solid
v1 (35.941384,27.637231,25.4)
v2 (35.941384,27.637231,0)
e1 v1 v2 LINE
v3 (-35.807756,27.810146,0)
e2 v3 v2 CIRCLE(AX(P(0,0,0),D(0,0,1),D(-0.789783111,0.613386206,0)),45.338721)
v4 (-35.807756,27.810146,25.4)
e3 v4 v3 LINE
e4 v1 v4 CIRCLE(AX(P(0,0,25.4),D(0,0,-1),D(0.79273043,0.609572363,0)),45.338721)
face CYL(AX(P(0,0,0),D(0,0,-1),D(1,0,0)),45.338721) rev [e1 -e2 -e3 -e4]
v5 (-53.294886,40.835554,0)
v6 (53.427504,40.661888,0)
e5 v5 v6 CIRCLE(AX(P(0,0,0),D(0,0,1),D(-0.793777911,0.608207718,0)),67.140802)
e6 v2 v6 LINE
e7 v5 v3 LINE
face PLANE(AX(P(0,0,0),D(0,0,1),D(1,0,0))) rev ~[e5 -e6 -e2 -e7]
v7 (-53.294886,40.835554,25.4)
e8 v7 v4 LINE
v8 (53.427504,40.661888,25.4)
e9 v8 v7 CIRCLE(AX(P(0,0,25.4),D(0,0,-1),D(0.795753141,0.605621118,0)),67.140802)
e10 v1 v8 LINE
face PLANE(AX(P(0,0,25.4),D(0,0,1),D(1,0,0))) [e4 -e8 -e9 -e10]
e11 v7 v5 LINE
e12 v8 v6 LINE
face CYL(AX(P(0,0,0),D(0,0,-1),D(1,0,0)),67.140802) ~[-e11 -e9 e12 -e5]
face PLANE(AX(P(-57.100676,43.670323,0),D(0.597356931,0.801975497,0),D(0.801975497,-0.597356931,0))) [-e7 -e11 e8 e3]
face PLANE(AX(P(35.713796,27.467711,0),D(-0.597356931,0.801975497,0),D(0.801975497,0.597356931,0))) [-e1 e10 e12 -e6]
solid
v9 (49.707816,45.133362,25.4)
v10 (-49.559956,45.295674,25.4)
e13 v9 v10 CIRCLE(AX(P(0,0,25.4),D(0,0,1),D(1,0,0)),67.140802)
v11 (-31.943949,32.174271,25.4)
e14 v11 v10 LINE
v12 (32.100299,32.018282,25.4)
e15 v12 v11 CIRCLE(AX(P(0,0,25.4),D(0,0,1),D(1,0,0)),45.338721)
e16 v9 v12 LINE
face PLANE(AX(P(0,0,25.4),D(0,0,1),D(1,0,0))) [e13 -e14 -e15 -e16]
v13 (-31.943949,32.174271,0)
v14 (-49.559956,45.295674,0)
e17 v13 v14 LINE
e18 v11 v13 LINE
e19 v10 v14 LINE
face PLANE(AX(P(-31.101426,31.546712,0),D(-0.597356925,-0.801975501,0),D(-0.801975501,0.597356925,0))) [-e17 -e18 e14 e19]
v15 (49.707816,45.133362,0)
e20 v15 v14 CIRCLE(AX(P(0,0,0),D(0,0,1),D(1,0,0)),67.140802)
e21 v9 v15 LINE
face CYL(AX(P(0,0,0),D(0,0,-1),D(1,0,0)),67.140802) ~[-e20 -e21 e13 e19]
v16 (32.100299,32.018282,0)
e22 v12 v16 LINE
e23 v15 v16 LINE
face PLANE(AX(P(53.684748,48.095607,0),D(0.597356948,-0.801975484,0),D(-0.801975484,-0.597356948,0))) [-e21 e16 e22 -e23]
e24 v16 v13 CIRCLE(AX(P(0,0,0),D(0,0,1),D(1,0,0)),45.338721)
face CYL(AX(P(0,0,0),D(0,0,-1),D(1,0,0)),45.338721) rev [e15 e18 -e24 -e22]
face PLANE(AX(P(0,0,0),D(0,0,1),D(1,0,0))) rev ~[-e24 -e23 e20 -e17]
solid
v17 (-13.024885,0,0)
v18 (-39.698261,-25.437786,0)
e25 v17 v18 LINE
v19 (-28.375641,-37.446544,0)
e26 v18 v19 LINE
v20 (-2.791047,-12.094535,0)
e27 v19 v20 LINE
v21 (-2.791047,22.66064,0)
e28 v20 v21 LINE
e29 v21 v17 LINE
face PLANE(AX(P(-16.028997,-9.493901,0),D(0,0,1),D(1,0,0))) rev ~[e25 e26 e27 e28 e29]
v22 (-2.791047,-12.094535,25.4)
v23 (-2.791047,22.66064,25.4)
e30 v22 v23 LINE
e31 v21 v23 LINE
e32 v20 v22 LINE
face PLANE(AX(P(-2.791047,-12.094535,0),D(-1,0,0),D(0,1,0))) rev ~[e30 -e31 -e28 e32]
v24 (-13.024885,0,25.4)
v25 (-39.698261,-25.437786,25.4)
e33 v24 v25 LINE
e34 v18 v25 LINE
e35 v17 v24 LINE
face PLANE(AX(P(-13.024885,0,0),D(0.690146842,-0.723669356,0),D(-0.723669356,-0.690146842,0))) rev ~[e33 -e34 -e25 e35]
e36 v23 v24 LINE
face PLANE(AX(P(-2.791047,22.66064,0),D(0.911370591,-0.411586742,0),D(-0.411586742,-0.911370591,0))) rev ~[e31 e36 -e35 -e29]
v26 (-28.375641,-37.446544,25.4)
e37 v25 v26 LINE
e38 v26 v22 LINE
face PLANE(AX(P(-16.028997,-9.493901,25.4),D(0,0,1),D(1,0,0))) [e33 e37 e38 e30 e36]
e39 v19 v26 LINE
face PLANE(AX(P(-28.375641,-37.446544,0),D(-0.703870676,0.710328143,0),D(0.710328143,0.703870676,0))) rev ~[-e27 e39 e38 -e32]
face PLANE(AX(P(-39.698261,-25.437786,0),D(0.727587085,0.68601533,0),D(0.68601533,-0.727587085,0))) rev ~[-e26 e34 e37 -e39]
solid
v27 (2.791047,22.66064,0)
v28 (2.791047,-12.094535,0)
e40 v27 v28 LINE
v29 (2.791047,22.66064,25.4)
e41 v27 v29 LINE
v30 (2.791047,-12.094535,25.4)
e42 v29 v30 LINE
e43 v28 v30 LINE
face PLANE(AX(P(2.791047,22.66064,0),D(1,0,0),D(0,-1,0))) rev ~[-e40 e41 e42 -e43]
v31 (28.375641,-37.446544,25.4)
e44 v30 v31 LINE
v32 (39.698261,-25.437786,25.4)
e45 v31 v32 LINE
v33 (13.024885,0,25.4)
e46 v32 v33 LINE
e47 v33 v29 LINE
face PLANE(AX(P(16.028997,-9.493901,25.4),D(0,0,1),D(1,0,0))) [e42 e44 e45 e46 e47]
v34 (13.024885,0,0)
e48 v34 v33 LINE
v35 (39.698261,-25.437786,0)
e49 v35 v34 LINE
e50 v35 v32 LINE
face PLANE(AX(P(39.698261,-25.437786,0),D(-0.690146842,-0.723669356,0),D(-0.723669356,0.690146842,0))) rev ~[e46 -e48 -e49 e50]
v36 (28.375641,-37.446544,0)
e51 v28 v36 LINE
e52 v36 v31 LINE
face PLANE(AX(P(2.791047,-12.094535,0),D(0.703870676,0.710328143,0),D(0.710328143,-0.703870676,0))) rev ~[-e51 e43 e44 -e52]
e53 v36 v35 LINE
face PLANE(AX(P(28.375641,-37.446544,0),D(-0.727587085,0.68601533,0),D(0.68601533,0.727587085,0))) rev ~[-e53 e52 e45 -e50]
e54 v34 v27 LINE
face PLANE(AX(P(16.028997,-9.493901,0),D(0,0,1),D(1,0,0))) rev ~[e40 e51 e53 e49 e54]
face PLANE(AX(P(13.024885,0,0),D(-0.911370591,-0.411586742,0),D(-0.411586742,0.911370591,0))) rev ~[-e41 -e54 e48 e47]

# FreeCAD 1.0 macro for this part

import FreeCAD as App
import Part
import Sketcher
from FreeCAD import Vector
Q = App.Units.Quantity


def add_polygon(sketch, points):
    """Adds a closed chain of lines whose ends are joined by coincident constraints."""
    first, n = sketch.GeometryCount, len(points)
    for a, b in zip(points, points[1:] + points[:1]):
        sketch.addGeometry(Part.LineSegment(App.Vector(*a, 0), App.Vector(*b, 0)), False)
    for i in range(n):
        sketch.addConstraint(Sketcher.Constraint("Coincident", first + i, 2, first + (i + 1) % n, 1))

doc = App.newDocument("Part")
params = doc.addObject("Spreadsheet::Sheet", "Params")
for row, (alias, value) in enumerate([
    ("pad1_length", "1 in"),
    ("pocket1_length", "1 in"),
    ("pocket2_length", "1 in"),
    ("pocket3_length", "1 in"),
    ("pad2_length", "1 in"),
], start=1):
    params.set(f"A{row}", alias)
    params.set(f"B{row}", "=" + value)
    params.setAlias(f"B{row}", alias)

body = doc.addObject("PartDesign::Body", "Body")
body.AllowCompound = True

# Sketch on XY plane
sketch1 = doc.addObject("Sketcher::SketchObject", "Sketch")
body.addObject(sketch1)
sketch1.AttachmentSupport = (doc.XY_Plane, [""])
sketch1.MapMode = "FlatFace"
sketch1.addGeometry(Part.Circle(Vector(0, 0, 0), Vector(0, 0, 1), 67.140802), False)
sketch1.addConstraint(Sketcher.Constraint("Coincident", 0, 3, -1, 1))
sketch1.addConstraint(Sketcher.Constraint("Diameter", 0, Q("134.281604 mm")))
pad1 = doc.addObject("PartDesign::Pad", "Pad")
body.addObject(pad1)
pad1.Profile = sketch1
pad1.setExpression("Length", "Params.pad1_length")

# Sketch on XY plane
sketch2 = doc.addObject("Sketcher::SketchObject", "Sketch001")
body.addObject(sketch2)
sketch2.AttachmentSupport = (doc.XY_Plane, [""])
sketch2.MapMode = "FlatFace"
sketch2.addGeometry(Part.Circle(Vector(0, 0, 0), Vector(0, 0, 1), 45.338721), False)
sketch2.addConstraint(Sketcher.Constraint("Coincident", 0, 3, -1, 1))
sketch2.addConstraint(Sketcher.Constraint("Diameter", 0, Q("90.677442 mm")))
pocket1 = doc.addObject("PartDesign::Pocket", "Pocket")
body.addObject(pocket1)
pocket1.Profile = sketch2
pocket1.setExpression("Length", "Params.pocket1_length")
pocket1.Reversed = True

# Sketch on XY plane
sketch3 = doc.addObject("Sketcher::SketchObject", "Sketch002")
body.addObject(sketch3)
sketch3.AttachmentSupport = (doc.XY_Plane, [""])
sketch3.MapMode = "FlatFace"
add_polygon(sketch3, [(-57.100676, 43.670323), (-35.660278, 27.700296), (-31.101426, 31.546712), (-53.631231, 48.328191)])  # lines 0-3
add_polygon(sketch3, [(35.713796, 27.467711), (57.154194, 43.437738), (53.684748, 48.095607), (31.154943, 31.314127)])  # lines 4-7
sketch3.addConstraint(Sketcher.Constraint("Parallel", 0, 2))
sketch3.addConstraint(Sketcher.Constraint("Perpendicular", 2, 3))
sketch3.addConstraint(Sketcher.Constraint("Perpendicular", 4, 5))
sketch3.addConstraint(Sketcher.Constraint("Perpendicular", 5, 6))
sketch3.addConstraint(Sketcher.Constraint("Equal", 0, 4))
sketch3.addConstraint(Sketcher.Constraint("Equal", 3, 5))
sketch3.addConstraint(Sketcher.Constraint("Equal", 2, 6))
sketch3.addConstraint(Sketcher.Constraint("DistanceX", 2, 2, 1, 2, Q("0.8870002 in")))
sketch3.addConstraint(Sketcher.Constraint("DistanceX", 6, 2, 5, 2, Q("0.8870002 in")))
sketch3.addConstraint(Sketcher.Constraint("DistanceX", 3, 2, 0, 2, Q("21.440398 mm")))
sketch3.addConstraint(Sketcher.Constraint("DistanceY", 7, 2, 1, 2, Q("4.079001 mm")))
sketch3.addConstraint(Sketcher.Constraint("Distance", 0, Q("26.73448 mm")))
sketch3.addConstraint(Sketcher.Constraint("DistanceY", -1, 1, 1, 2, Q("31.546712 mm")))
sketch3.addConstraint(Sketcher.Constraint("DistanceX", 2, 2, -1, 1, Q("53.631231 mm")))
sketch3.addConstraint(Sketcher.Constraint("DistanceX", 0, 2, 1, 2, Q("4.558852 mm")))
sketch3.addConstraint(Sketcher.Constraint("DistanceX", 1, 2, 4, 2, Q("88.25562 mm")))
pocket2 = doc.addObject("PartDesign::Pocket", "Pocket001")
body.addObject(pocket2)
pocket2.Profile = sketch3
pocket2.setExpression("Length", "Params.pocket2_length")
pocket2.Reversed = True

# Sketch on XY plane
sketch4 = doc.addObject("Sketcher::SketchObject", "Sketch003")
body.addObject(sketch4)
sketch4.AttachmentSupport = (doc.XY_Plane, [""])
sketch4.MapMode = "FlatFace"
add_polygon(sketch4, [(-57.100676, 43.670323), (-35.660278, 27.700296), (-31.101426, 31.546712), (-53.631231, 48.328191)])  # lines 0-3
add_polygon(sketch4, [(35.713796, 27.467711), (57.154194, 43.437738), (53.684748, 48.095607), (31.154943, 31.314127)])  # lines 4-7
sketch4.addConstraint(Sketcher.Constraint("Parallel", 0, 2))
sketch4.addConstraint(Sketcher.Constraint("Perpendicular", 2, 3))
sketch4.addConstraint(Sketcher.Constraint("Perpendicular", 4, 5))
sketch4.addConstraint(Sketcher.Constraint("Perpendicular", 5, 6))
sketch4.addConstraint(Sketcher.Constraint("Equal", 0, 4))
sketch4.addConstraint(Sketcher.Constraint("Equal", 3, 5))
sketch4.addConstraint(Sketcher.Constraint("Equal", 2, 6))
sketch4.addConstraint(Sketcher.Constraint("DistanceX", 2, 2, 1, 2, Q("0.8870002 in")))
sketch4.addConstraint(Sketcher.Constraint("DistanceX", 6, 2, 5, 2, Q("0.8870002 in")))
sketch4.addConstraint(Sketcher.Constraint("DistanceX", 3, 2, 0, 2, Q("21.440398 mm")))
sketch4.addConstraint(Sketcher.Constraint("DistanceY", 7, 2, 1, 2, Q("4.079001 mm")))
sketch4.addConstraint(Sketcher.Constraint("Distance", 0, Q("26.73448 mm")))
sketch4.addConstraint(Sketcher.Constraint("DistanceY", -1, 1, 1, 2, Q("31.546712 mm")))
sketch4.addConstraint(Sketcher.Constraint("DistanceX", 2, 2, -1, 1, Q("53.631231 mm")))
sketch4.addConstraint(Sketcher.Constraint("DistanceX", 0, 2, 1, 2, Q("4.558852 mm")))
sketch4.addConstraint(Sketcher.Constraint("DistanceX", 1, 2, 4, 2, Q("88.25562 mm")))
pocket3 = doc.addObject("PartDesign::Pocket", "Pocket002")
body.addObject(pocket3)
pocket3.Profile = sketch4
pocket3.setExpression("Length", "Params.pocket3_length")
pocket3.Reversed = True
body2 = doc.addObject("PartDesign::Body", "Body001")
body2.AllowCompound = True

# Sketch on XY plane
sketch5 = doc.addObject("Sketcher::SketchObject", "Sketch004")
body2.addObject(sketch5)
sketch5.AttachmentSupport = (doc.getObject("XY_Plane001"), [""])
sketch5.MapMode = "FlatFace"
add_polygon(sketch5, [(-2.791047, -12.094535), (-2.791047, 22.66064), (-13.024885, 0), (-39.698261, -25.437786), (-28.375641, -37.446544)])  # lines 0-4
add_polygon(sketch5, [(13.024885, 0), (2.791047, 22.66064), (2.791047, -12.094535), (28.375641, -37.446544), (39.698261, -25.437786)])  # lines 5-9
sketch5.addConstraint(Sketcher.Constraint("Vertical", 0))
sketch5.addConstraint(Sketcher.Constraint("Vertical", 6))
sketch5.addConstraint(Sketcher.Constraint("Symmetric", 1, 2, 9, 2, -1, 1))
sketch5.addConstraint(Sketcher.Constraint("Symmetric", 0, 2, 5, 2, -2))
sketch5.addConstraint(Sketcher.Constraint("Symmetric", 3, 2, 7, 2, -2))
sketch5.addConstraint(Sketcher.Constraint("Symmetric", 2, 2, 8, 2, -2))
sketch5.addConstraint(Sketcher.Constraint("PointOnObject", 1, 2, -1))
sketch5.addConstraint(Sketcher.Constraint("Horizontal", 4, 2, 6, 2))
sketch5.addConstraint(Sketcher.Constraint("Distance", 3, Q("16.504908 mm")))
sketch5.addConstraint(Sketcher.Constraint("DistanceY", 0, 1, 0, 2, Q("34.755175 mm")))
sketch5.addConstraint(Sketcher.Constraint("DistanceY", -1, 1, 0, 2, Q("22.66064 mm")))
sketch5.addConstraint(Sketcher.Constraint("DistanceX", 2, 2, -1, 1, Q("39.698261 mm")))
sketch5.addConstraint(Sketcher.Constraint("DistanceX", 3, 2, -1, 1, Q("28.375641 mm")))
sketch5.addConstraint(Sketcher.Constraint("DistanceY", 3, 2, 4, 2, Q("25.352009 mm")))
sketch5.addConstraint(Sketcher.Constraint("DistanceX", 3, 2, 5, 2, Q("31.166688 mm")))
sketch5.addConstraint(Sketcher.Constraint("DistanceX", 1, 2, 9, 2, Q("26.04977 mm")))
pad2 = doc.addObject("PartDesign::Pad", "Pad001")
body2.addObject(pad2)
pad2.Profile = sketch5
pad2.setExpression("Length", "Params.pad2_length")

doc.recompute()
